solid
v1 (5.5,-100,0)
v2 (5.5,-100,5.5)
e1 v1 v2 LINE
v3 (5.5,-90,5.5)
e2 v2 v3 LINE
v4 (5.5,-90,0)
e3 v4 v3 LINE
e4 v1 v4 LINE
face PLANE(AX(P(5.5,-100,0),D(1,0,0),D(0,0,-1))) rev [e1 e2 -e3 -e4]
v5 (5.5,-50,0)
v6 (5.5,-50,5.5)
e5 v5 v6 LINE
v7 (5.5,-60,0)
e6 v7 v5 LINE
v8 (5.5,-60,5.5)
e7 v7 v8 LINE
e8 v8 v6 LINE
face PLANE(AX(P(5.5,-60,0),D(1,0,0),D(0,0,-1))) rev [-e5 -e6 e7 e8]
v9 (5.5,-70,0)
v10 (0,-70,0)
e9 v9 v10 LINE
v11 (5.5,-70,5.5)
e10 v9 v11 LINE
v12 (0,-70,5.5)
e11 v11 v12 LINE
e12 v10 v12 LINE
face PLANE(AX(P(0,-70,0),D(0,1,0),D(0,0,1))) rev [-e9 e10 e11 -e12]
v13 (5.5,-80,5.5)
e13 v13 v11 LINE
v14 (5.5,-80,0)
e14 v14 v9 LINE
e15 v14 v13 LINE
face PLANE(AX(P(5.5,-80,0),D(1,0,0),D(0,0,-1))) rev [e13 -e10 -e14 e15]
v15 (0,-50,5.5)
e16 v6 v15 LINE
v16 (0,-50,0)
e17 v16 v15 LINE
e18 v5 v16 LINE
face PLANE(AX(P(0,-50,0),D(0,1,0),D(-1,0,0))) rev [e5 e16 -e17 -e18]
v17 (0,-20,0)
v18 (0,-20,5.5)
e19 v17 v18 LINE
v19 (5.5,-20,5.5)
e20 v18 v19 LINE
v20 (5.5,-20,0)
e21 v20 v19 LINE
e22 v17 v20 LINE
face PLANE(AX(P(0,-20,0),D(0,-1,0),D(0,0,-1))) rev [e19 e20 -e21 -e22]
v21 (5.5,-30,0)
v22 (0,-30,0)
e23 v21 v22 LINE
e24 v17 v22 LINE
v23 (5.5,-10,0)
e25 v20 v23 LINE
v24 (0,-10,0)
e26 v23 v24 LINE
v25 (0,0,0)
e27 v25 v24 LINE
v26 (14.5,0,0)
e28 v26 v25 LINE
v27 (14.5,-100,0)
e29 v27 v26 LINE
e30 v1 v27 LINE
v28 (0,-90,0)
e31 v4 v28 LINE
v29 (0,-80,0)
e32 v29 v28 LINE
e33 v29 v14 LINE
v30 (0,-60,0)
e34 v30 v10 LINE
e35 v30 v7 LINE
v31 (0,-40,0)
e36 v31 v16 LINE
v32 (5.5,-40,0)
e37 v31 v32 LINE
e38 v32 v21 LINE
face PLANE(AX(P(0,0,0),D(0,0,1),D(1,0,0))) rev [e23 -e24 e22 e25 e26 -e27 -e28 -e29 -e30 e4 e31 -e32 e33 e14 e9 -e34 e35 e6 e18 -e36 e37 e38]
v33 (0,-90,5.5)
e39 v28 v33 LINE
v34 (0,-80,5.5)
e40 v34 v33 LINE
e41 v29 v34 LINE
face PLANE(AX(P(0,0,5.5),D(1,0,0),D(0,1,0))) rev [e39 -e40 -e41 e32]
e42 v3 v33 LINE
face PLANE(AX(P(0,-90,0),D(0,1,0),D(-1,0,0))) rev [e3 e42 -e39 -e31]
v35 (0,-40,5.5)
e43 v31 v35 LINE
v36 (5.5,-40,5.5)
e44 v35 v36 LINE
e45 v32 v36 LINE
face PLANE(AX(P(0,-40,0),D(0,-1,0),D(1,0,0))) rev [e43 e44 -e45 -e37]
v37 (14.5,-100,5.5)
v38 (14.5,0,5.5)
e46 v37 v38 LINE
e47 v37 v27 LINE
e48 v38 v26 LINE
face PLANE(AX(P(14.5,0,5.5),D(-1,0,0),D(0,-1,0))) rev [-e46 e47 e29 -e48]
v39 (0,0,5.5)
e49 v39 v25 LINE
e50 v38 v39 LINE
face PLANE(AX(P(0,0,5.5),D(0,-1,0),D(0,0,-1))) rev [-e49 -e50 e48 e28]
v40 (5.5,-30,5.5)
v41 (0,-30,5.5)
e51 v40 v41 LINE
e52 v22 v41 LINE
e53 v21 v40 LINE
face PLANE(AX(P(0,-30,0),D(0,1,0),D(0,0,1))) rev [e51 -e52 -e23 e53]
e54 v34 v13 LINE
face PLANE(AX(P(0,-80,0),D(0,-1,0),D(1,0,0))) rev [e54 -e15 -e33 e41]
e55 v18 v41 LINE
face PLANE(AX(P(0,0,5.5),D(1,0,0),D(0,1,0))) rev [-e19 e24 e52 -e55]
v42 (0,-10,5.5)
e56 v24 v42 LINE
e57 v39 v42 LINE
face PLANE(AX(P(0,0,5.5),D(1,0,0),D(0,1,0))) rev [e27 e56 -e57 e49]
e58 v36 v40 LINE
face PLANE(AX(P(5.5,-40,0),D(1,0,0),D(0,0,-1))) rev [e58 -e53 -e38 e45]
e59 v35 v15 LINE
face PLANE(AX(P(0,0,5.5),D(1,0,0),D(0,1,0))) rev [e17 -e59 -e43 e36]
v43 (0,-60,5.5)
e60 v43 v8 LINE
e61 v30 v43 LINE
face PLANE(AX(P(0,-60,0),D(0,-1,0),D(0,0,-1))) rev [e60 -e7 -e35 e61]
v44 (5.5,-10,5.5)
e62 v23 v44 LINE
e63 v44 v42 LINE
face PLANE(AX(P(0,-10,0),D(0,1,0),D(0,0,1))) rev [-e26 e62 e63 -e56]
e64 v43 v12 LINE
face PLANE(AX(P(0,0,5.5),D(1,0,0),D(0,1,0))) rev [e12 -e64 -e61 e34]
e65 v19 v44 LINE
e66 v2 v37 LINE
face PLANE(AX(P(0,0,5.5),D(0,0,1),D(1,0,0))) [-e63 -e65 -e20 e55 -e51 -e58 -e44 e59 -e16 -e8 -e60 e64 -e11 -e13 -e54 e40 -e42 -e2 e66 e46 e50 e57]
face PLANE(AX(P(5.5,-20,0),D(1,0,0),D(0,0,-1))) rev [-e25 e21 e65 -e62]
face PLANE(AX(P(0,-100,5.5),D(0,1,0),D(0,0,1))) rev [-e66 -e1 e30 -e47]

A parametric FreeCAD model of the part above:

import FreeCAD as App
import Part
import Sketcher

V = App.Vector

doc = App.newDocument("Part")
params = doc.addObject("Spreadsheet::Sheet", "Params")
for row, (alias, value) in enumerate([
    ("sketch1_height", "100 mm"),
    ("sketch1_width", "14.5 mm"),
    ("pad1_length", "5.5 mm"),
    ("sketch2_height", "10 mm"),
    ("sketch2_width", "5.5 mm"),
], start=1):
    params.set(f"A{row}", alias)
    params.set(f"B{row}", "=" + value)
    params.setAlias(f"B{row}", alias)

body = doc.addObject("PartDesign::Body", "Body")

sketch1 = doc.addObject("Sketcher::SketchObject", "Sketch")
body.addObject(sketch1)
sketch1.AttachmentSupport = (doc.XY_Plane, [""])
sketch1.MapMode = "FlatFace"
sketch1.addGeometry([
    Part.LineSegment(V(0, 0, 0), V(0, -100, 0)),
    Part.LineSegment(V(0, -100, 0), V(14, -100, 0)),
    Part.LineSegment(V(14, -100, 0), V(14, 0, 0)),
    Part.LineSegment(V(14, 0, 0), V(0, 0, 0)),
], False)
sketch1.addConstraint([
    Sketcher.Constraint("Coincident", 0, 2, 1, 1),
    Sketcher.Constraint("Coincident", 1, 2, 2, 1),
    Sketcher.Constraint("Coincident", 2, 2, 3, 1),
    Sketcher.Constraint("Coincident", 3, 2, 0, 1),
    Sketcher.Constraint("Vertical", 0),
    Sketcher.Constraint("Horizontal", 1),
    Sketcher.Constraint("Vertical", 2),
    Sketcher.Constraint("Horizontal", 3),
    Sketcher.Constraint("Coincident", 3, 2, -1, 1),
    Sketcher.Constraint("DistanceY", 0, 2, 0, 1, 100.0),
    Sketcher.Constraint("DistanceX", 1, 1, 1, 2, 14.5),
])
sketch1.setExpression("Constraints[9]", "Params.sketch1_height")
sketch1.setExpression("Constraints[10]", "Params.sketch1_width")
pad1 = doc.addObject("PartDesign::Pad", "Pad")
body.addObject(pad1)
pad1.Profile = sketch1
pad1.setExpression("Length", "Params.pad1_length")

sketch2 = doc.addObject("Sketcher::SketchObject", "Sketch001")
body.addObject(sketch2)
sketch2.AttachmentSupport = (doc.XY_Plane, [""])
sketch2.MapMode = "FlatFace"
sketch2.AttachmentOffset = App.Placement(V(0, 0, 5.5), App.Rotation())
sketch2.addGeometry([
    Part.LineSegment(V(0, -10, 0), V(0, -20, 0)),
    Part.LineSegment(V(0, -20, 0), V(6, -20, 0)),
    Part.LineSegment(V(6, -20, 0), V(6, -10, 0)),
    Part.LineSegment(V(6, -10, 0), V(0, -10, 0)),
    Part.LineSegment(V(0, -30, 0), V(0, -40, 0)),
    Part.LineSegment(V(0, -40, 0), V(6, -40, 0)),
    Part.LineSegment(V(6, -40, 0), V(6, -30, 0)),
    Part.LineSegment(V(6, -30, 0), V(0, -30, 0)),
    Part.LineSegment(V(0, -50, 0), V(0, -60, 0)),
    Part.LineSegment(V(0, -60, 0), V(6, -60, 0)),
    Part.LineSegment(V(6, -60, 0), V(6, -50, 0)),
    Part.LineSegment(V(6, -50, 0), V(0, -50, 0)),
    Part.LineSegment(V(0, -70, 0), V(0, -80, 0)),
    Part.LineSegment(V(0, -80, 0), V(6, -80, 0)),
    Part.LineSegment(V(6, -80, 0), V(6, -70, 0)),
    Part.LineSegment(V(6, -70, 0), V(0, -70, 0)),
    Part.LineSegment(V(0, -90, 0), V(0, -100, 0)),
    Part.LineSegment(V(0, -100, 0), V(6, -100, 0)),
    Part.LineSegment(V(6, -100, 0), V(6, -90, 0)),
    Part.LineSegment(V(6, -90, 0), V(0, -90, 0)),
], False)
sketch2.addConstraint([
    Sketcher.Constraint("Coincident", 0, 2, 1, 1),
    Sketcher.Constraint("Coincident", 1, 2, 2, 1),
    Sketcher.Constraint("Coincident", 2, 2, 3, 1),
    Sketcher.Constraint("Coincident", 3, 2, 0, 1),
    Sketcher.Constraint("Coincident", 4, 2, 5, 1),
    Sketcher.Constraint("Coincident", 5, 2, 6, 1),
    Sketcher.Constraint("Coincident", 6, 2, 7, 1),
    Sketcher.Constraint("Coincident", 7, 2, 4, 1),
    Sketcher.Constraint("Coincident", 8, 2, 9, 1),
    Sketcher.Constraint("Coincident", 9, 2, 10, 1),
    Sketcher.Constraint("Coincident", 10, 2, 11, 1),
    Sketcher.Constraint("Coincident", 11, 2, 8, 1),
    Sketcher.Constraint("Coincident", 12, 2, 13, 1),
    Sketcher.Constraint("Coincident", 13, 2, 14, 1),
    Sketcher.Constraint("Coincident", 14, 2, 15, 1),
    Sketcher.Constraint("Coincident", 15, 2, 12, 1),
    Sketcher.Constraint("Coincident", 16, 2, 17, 1),
    Sketcher.Constraint("Coincident", 17, 2, 18, 1),
    Sketcher.Constraint("Coincident", 18, 2, 19, 1),
    Sketcher.Constraint("Coincident", 19, 2, 16, 1),
    Sketcher.Constraint("Vertical", 0),
    Sketcher.Constraint("Horizontal", 1),
    Sketcher.Constraint("Vertical", 2),
    Sketcher.Constraint("Horizontal", 3),
    Sketcher.Constraint("Vertical", 4),
    Sketcher.Constraint("Horizontal", 5),
    Sketcher.Constraint("Vertical", 6),
    Sketcher.Constraint("Horizontal", 7),
    Sketcher.Constraint("Vertical", 8),
    Sketcher.Constraint("Horizontal", 9),
    Sketcher.Constraint("Vertical", 10),
    Sketcher.Constraint("Horizontal", 11),
    Sketcher.Constraint("Vertical", 12),
    Sketcher.Constraint("Horizontal", 13),
    Sketcher.Constraint("Vertical", 14),
    Sketcher.Constraint("Horizontal", 15),
    Sketcher.Constraint("Vertical", 16),
    Sketcher.Constraint("Horizontal", 17),
    Sketcher.Constraint("Vertical", 18),
    Sketcher.Constraint("Horizontal", 19),
    Sketcher.Constraint("PointOnObject", 0, 2, -2),
    Sketcher.Constraint("PointOnObject", 4, 2, -2),
    Sketcher.Constraint("PointOnObject", 8, 2, -2),
    Sketcher.Constraint("PointOnObject", 12, 2, -2),
    Sketcher.Constraint("PointOnObject", 16, 2, -2),
    Sketcher.Constraint("Vertical", 2, 2, 5, 2),
    Sketcher.Constraint("Vertical", 6, 2, 9, 2),
    Sketcher.Constraint("Vertical", 10, 2, 13, 2),
    Sketcher.Constraint("Vertical", 14, 2, 17, 2),
    Sketcher.Constraint("Equal", 2, 4),
    Sketcher.Constraint("Equal", 6, 8),
    Sketcher.Constraint("Equal", 10, 12),
    Sketcher.Constraint("Equal", 14, 16),
    Sketcher.Constraint("DistanceY", 0, 2, 0, 1, 10.0),
    Sketcher.Constraint("DistanceX", 1, 1, 1, 2, 5.5),
    Sketcher.Constraint("DistanceY", 0, 2, -1, 1, 20.0),
    Sketcher.Constraint("DistanceY", 4, 2, -1, 1, 40.0),
    Sketcher.Constraint("DistanceY", 8, 2, -1, 1, 60.0),
    Sketcher.Constraint("DistanceY", 12, 2, -1, 1, 80.0),
    Sketcher.Constraint("DistanceY", 16, 2, -1, 1, 100.0),
])
sketch2.setExpression("Constraints[53]", "Params.sketch2_height")
sketch2.setExpression("Constraints[54]", "Params.sketch2_width")
pocket1 = doc.addObject("PartDesign::Pocket", "Pocket")
body.addObject(pocket1)
pocket1.Profile = sketch2
pocket1.Type = "ThroughAll"

doc.recompute()
